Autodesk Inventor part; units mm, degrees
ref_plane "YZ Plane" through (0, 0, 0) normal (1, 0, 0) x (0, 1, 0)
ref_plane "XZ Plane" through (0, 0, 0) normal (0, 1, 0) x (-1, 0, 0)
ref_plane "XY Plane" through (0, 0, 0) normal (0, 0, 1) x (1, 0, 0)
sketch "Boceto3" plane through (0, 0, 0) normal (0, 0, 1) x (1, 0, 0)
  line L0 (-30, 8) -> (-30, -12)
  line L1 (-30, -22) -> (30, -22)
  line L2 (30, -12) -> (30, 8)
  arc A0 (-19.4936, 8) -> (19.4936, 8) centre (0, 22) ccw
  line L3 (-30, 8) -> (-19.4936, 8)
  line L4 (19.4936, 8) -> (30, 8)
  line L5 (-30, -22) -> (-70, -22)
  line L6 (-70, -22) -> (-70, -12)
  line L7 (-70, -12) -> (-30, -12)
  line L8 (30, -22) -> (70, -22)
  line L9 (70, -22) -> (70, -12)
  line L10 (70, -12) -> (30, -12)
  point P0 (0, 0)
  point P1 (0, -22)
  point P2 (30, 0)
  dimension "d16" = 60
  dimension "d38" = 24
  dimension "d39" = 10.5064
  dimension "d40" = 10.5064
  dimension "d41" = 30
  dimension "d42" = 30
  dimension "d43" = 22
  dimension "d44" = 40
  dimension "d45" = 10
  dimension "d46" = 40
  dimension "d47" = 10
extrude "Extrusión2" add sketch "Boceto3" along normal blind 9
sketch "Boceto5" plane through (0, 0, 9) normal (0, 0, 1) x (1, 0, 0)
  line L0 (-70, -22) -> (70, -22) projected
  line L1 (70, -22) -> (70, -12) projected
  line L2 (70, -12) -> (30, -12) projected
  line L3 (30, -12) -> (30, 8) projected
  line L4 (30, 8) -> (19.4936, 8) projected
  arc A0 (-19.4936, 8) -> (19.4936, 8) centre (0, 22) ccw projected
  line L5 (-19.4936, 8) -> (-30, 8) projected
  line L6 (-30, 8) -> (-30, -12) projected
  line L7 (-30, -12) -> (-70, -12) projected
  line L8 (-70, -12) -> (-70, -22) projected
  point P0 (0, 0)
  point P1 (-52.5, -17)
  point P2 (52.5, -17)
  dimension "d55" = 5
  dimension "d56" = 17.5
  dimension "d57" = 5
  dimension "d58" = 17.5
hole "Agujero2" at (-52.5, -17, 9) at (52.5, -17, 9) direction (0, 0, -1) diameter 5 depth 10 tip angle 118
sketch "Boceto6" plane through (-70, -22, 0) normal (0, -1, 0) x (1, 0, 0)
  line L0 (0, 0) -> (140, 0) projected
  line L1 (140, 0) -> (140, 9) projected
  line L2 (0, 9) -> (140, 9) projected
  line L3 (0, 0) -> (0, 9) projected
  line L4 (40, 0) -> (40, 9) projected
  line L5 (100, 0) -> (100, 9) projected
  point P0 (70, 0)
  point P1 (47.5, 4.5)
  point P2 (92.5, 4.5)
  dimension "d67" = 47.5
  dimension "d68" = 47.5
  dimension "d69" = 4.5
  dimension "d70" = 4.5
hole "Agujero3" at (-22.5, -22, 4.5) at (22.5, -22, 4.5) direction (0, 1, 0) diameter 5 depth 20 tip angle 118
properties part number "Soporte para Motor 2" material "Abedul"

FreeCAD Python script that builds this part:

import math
import FreeCAD as App
import Part
import Sketcher

V = App.Vector
Q = App.Units.Quantity

doc = App.newDocument("Part")
body = doc.addObject("PartDesign::Body", "Body")

# Sketch on XY plane
sketch1 = body.newObject("Sketcher::SketchObject", "Sketch")
sketch1.AttachmentSupport = (doc.getObject("XY_Plane"), [""])
sketch1.MapMode = "FlatFace"
sketch1.addGeometry(Part.LineSegment(V(-19, 8, 0), V(-30, 8, 0)), False)
sketch1.addGeometry(Part.LineSegment(V(-30, 8, 0), V(-30, -12, 0)), False)
sketch1.addGeometry(Part.LineSegment(V(-30, -12, 0), V(-70, -12, 0)), False)
sketch1.addGeometry(Part.LineSegment(V(-70, -12, 0), V(-70, -22, 0)), False)
sketch1.addGeometry(Part.LineSegment(V(-70, -22, 0), V(70, -22, 0)), False)
sketch1.addGeometry(Part.LineSegment(V(70, -22, 0), V(70, -12, 0)), False)
sketch1.addGeometry(Part.LineSegment(V(70, -12, 0), V(30, -12, 0)), False)
sketch1.addGeometry(Part.LineSegment(V(30, -12, 0), V(30, 8, 0)), False)
sketch1.addGeometry(Part.LineSegment(V(30, 8, 0), V(19, 8, 0)), False)
sketch1.addGeometry(Part.ArcOfCircle(Part.Circle(V(0, 22, 0), V(0, 0, 1), 24), math.radians(-144), math.radians(-36)), False)
sketch1.addConstraint(Sketcher.Constraint("Coincident", 0, 2, 1, 1))
sketch1.addConstraint(Sketcher.Constraint("Coincident", 1, 2, 2, 1))
sketch1.addConstraint(Sketcher.Constraint("Coincident", 2, 2, 3, 1))
sketch1.addConstraint(Sketcher.Constraint("Coincident", 3, 2, 4, 1))
sketch1.addConstraint(Sketcher.Constraint("Coincident", 4, 2, 5, 1))
sketch1.addConstraint(Sketcher.Constraint("Coincident", 5, 2, 6, 1))
sketch1.addConstraint(Sketcher.Constraint("Coincident", 6, 2, 7, 1))
sketch1.addConstraint(Sketcher.Constraint("Coincident", 7, 2, 8, 1))
sketch1.addConstraint(Sketcher.Constraint("Coincident", 8, 2, 9, 2))
sketch1.addConstraint(Sketcher.Constraint("Coincident", 9, 1, 0, 1))
sketch1.addConstraint(Sketcher.Constraint("Horizontal", 0))
sketch1.addConstraint(Sketcher.Constraint("Vertical", 1))
sketch1.addConstraint(Sketcher.Constraint("Horizontal", 2))
sketch1.addConstraint(Sketcher.Constraint("Vertical", 3))
sketch1.addConstraint(Sketcher.Constraint("Horizontal", 4))
sketch1.addConstraint(Sketcher.Constraint("Vertical", 5))
sketch1.addConstraint(Sketcher.Constraint("Horizontal", 6))
sketch1.addConstraint(Sketcher.Constraint("Vertical", 7))
sketch1.addConstraint(Sketcher.Constraint("Horizontal", 8))
sketch1.addConstraint(Sketcher.Constraint("Symmetric", 2, 2, 5, 2, -2))
sketch1.addConstraint(Sketcher.Constraint("Symmetric", 0, 2, 7, 2, -2))
sketch1.addConstraint(Sketcher.Constraint("PointOnObject", 9, 3, -2))
sketch1.addConstraint(Sketcher.Constraint("Radius", 9, Q("24 mm")))
sketch1.addConstraint(Sketcher.Constraint("DistanceX", 2, 2, 2, 1, Q("40 mm")))
sketch1.addConstraint(Sketcher.Constraint("DistanceY", 3, 2, 3, 1, Q("10 mm")))
sketch1.addConstraint(Sketcher.Constraint("DistanceY", -1, 1, 9, 3, Q("22 mm")))
sketch1.addConstraint(Sketcher.Constraint("DistanceX", 0, 2, -1, 1, Q("30 mm")))
sketch1.addConstraint(Sketcher.Constraint("DistanceY", 3, 2, -1, 1, Q("22 mm")))
sketch1.addConstraint(Sketcher.Constraint("DistanceY", 3, 2, 0, 2, Q("30 mm")))
pad1 = body.newObject("PartDesign::Pad", "Pad")
pad1.Profile = sketch1
pad1.Length = 9

# Sketch on XY plane
sketch2 = body.newObject("Sketcher::SketchObject", "Sketch001")
sketch2.AttachmentSupport = (doc.getObject("XY_Plane"), [""])
sketch2.MapMode = "FlatFace"
sketch2.AttachmentOffset = App.Placement(V(0, 0, 9), App.Rotation())
sketch2.addGeometry(Part.Circle(V(-52.5, -17, 0), V(0, 0, 1), 2.5), False)
sketch2.addGeometry(Part.Circle(V(52.5, -17, 0), V(0, 0, 1), 2.5), False)
sketch2.addConstraint(Sketcher.Constraint("Equal", 0, 1))
sketch2.addConstraint(Sketcher.Constraint("Symmetric", 0, 3, 1, 3, -2))
sketch2.addConstraint(Sketcher.Constraint("Diameter", 0, Q("5 mm")))
sketch2.addConstraint(Sketcher.Constraint("DistanceY", 0, 3, -1, 1, Q("17 mm")))
sketch2.addConstraint(Sketcher.Constraint("DistanceX", 0, 3, 1, 3, Q("105 mm")))
doc.recompute()
hole = body.newObject("PartDesign::Hole", "Hole")
hole.Profile = sketch2
hole.ThreadType = "None"
hole.Diameter = 5
hole.DepthType = "Dimension"
hole.Depth = 10
hole.DrillPoint = "Angled"
hole.DrillPointAngle = 118

# Sketch on XZ plane
sketch3 = body.newObject("Sketcher::SketchObject", "Sketch002")
sketch3.AttachmentSupport = (doc.getObject("XZ_Plane"), [""])
sketch3.MapMode = "FlatFace"
sketch3.AttachmentOffset = App.Placement(V(0, 0, 22), App.Rotation())
sketch3.addGeometry(Part.Circle(V(-22.5, 4.5, 0), V(0, 0, 1), 2.5), False)
sketch3.addGeometry(Part.Circle(V(22.5, 4.5, 0), V(0, 0, 1), 2.5), False)
sketch3.addConstraint(Sketcher.Constraint("Equal", 0, 1))
sketch3.addConstraint(Sketcher.Constraint("Symmetric", 0, 3, 1, 3, -2))
sketch3.addConstraint(Sketcher.Constraint("Diameter", 0, Q("5 mm")))
sketch3.addConstraint(Sketcher.Constraint("DistanceX", 0, 3, 1, 3, Q("45 mm")))
sketch3.addConstraint(Sketcher.Constraint("DistanceY", -1, 1, 0, 3, Q("4.5 mm")))
doc.recompute()
hole2 = body.newObject("PartDesign::Hole", "Hole001")
hole2.Profile = sketch3
hole2.ThreadType = "None"
hole2.Diameter = 5
hole2.DepthType = "Dimension"
hole2.Depth = 20
hole2.DrillPoint = "Angled"
hole2.DrillPointAngle = 118

doc.recompute()
